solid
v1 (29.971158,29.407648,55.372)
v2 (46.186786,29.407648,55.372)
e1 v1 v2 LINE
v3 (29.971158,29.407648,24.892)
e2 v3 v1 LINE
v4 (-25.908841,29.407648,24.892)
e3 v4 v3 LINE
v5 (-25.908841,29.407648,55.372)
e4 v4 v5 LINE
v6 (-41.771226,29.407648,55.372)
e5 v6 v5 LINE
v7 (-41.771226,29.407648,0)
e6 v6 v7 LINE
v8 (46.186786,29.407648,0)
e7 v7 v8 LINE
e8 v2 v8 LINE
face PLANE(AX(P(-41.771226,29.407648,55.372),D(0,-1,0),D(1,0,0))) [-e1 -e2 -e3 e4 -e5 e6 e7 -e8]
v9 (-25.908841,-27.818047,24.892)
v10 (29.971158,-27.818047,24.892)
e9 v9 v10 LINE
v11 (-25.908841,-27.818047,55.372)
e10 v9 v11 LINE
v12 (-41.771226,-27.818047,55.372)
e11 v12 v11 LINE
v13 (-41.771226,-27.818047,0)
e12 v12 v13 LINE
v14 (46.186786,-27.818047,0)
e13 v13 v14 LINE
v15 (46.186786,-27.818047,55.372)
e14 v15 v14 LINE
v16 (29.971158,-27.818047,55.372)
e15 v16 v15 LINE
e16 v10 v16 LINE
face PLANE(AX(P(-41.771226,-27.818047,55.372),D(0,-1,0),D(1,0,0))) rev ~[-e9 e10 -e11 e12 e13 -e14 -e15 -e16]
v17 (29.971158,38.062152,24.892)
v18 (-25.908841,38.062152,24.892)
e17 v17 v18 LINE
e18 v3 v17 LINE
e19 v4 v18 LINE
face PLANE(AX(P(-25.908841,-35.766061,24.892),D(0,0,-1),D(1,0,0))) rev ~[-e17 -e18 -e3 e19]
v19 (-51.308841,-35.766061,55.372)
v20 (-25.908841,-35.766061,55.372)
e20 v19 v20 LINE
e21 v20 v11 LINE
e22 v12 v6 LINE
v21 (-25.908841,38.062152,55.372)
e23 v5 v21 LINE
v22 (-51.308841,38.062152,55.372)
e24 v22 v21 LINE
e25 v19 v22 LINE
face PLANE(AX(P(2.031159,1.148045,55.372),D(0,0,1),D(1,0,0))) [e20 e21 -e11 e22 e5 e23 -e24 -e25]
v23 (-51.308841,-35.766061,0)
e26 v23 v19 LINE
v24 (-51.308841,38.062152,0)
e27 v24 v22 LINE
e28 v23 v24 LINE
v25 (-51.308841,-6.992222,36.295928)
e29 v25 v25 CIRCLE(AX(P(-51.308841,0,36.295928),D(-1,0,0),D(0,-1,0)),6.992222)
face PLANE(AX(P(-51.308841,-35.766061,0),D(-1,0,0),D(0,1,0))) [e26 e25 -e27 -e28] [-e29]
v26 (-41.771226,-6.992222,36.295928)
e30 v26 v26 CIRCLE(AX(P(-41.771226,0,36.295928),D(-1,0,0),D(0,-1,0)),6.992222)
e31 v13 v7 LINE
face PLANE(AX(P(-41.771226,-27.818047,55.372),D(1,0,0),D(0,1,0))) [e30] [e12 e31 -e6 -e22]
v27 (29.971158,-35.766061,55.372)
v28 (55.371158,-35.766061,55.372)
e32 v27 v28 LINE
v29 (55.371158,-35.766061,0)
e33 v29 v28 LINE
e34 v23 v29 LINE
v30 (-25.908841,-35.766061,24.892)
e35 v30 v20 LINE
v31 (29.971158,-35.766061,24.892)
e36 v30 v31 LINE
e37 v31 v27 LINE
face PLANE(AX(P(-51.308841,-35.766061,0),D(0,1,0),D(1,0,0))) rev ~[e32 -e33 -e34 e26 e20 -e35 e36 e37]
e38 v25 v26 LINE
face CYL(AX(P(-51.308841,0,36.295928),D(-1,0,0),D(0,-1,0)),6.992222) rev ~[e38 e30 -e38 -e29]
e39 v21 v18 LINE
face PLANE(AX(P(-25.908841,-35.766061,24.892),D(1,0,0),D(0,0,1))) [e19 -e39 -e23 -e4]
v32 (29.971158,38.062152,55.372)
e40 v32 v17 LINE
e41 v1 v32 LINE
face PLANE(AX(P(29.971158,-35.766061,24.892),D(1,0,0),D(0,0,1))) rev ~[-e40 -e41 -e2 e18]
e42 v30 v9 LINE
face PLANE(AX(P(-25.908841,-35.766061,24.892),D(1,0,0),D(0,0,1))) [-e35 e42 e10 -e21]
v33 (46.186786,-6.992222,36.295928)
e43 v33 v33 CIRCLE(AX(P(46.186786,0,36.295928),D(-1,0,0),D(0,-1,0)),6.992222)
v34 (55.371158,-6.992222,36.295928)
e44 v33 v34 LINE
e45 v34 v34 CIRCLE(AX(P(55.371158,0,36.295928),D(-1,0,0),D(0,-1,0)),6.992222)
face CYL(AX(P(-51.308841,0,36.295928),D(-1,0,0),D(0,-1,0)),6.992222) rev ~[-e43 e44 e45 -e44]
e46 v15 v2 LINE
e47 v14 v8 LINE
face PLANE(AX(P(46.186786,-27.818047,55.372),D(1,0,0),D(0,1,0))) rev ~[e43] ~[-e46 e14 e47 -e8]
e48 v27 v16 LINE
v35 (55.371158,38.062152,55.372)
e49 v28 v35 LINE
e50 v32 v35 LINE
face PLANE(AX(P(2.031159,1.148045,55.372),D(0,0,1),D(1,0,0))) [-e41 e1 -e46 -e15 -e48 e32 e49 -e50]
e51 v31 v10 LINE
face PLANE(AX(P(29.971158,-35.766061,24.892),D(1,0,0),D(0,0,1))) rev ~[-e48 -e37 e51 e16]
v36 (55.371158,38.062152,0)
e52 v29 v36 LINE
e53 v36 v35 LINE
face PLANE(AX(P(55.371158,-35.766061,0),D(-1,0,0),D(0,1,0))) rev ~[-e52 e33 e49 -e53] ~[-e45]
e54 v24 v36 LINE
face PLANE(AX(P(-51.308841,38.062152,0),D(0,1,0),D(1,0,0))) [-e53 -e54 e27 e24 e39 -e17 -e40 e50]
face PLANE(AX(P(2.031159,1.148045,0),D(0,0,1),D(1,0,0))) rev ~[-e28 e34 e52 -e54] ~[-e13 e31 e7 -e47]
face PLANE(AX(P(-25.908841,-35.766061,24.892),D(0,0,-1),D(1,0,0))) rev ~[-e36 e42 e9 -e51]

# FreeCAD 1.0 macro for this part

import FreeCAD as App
import Part
import Sketcher

V = App.Vector
Q = App.Units.Quantity

doc = App.newDocument("Part")
body = doc.addObject("PartDesign::Body", "Body")

# Sketch on XY plane
sketch1 = body.newObject("Sketcher::SketchObject", "Sketch")
sketch1.AttachmentSupport = (doc.getObject("XY_Plane"), [""])
sketch1.MapMode = "FlatFace"
sketch1.addGeometry(Part.LineSegment(V(-51, 38, 0), V(-51, -36, 0)), False)
sketch1.addGeometry(Part.LineSegment(V(-51, -36, 0), V(55, -36, 0)), False)
sketch1.addGeometry(Part.LineSegment(V(55, -36, 0), V(55, 38, 0)), False)
sketch1.addGeometry(Part.LineSegment(V(55, 38, 0), V(-51, 38, 0)), False)
sketch1.addConstraint(Sketcher.Constraint("Coincident", 0, 2, 1, 1))
sketch1.addConstraint(Sketcher.Constraint("Coincident", 1, 2, 2, 1))
sketch1.addConstraint(Sketcher.Constraint("Coincident", 2, 2, 3, 1))
sketch1.addConstraint(Sketcher.Constraint("Coincident", 3, 2, 0, 1))
sketch1.addConstraint(Sketcher.Constraint("Vertical", 0))
sketch1.addConstraint(Sketcher.Constraint("Horizontal", 1))
sketch1.addConstraint(Sketcher.Constraint("Vertical", 2))
sketch1.addConstraint(Sketcher.Constraint("Horizontal", 3))
sketch1.addConstraint(Sketcher.Constraint("DistanceX", 1, 1, 1, 2, Q("4.1999999 in")))
sketch1.addConstraint(Sketcher.Constraint("DistanceY", 0, 2, 0, 1, Q("73.828213 mm")))
sketch1.addConstraint(Sketcher.Constraint("DistanceX", 0, 2, -1, 1, Q("51.308841 mm")))
sketch1.addConstraint(Sketcher.Constraint("DistanceY", 0, 2, -1, 1, Q("35.766061 mm")))
pad1 = body.newObject("PartDesign::Pad", "Pad")
pad1.Profile = sketch1
pad1.Length = Q("2.18 in")

# Sketch on XY plane
sketch2 = body.newObject("Sketcher::SketchObject", "Sketch001")
sketch2.AttachmentSupport = (doc.getObject("XY_Plane"), [""])
sketch2.MapMode = "FlatFace"
sketch2.AttachmentOffset = App.Placement(V(0, 0, 2.18 * 25.4), App.Rotation())
sketch2.addGeometry(Part.LineSegment(V(-42, 29, 0), V(-42, -28, 0)), False)
sketch2.addGeometry(Part.LineSegment(V(-42, -28, 0), V(46, -28, 0)), False)
sketch2.addGeometry(Part.LineSegment(V(46, -28, 0), V(46, 29, 0)), False)
sketch2.addGeometry(Part.LineSegment(V(46, 29, 0), V(-42, 29, 0)), False)
sketch2.addConstraint(Sketcher.Constraint("Coincident", 0, 2, 1, 1))
sketch2.addConstraint(Sketcher.Constraint("Coincident", 1, 2, 2, 1))
sketch2.addConstraint(Sketcher.Constraint("Coincident", 2, 2, 3, 1))
sketch2.addConstraint(Sketcher.Constraint("Coincident", 3, 2, 0, 1))
sketch2.addConstraint(Sketcher.Constraint("Vertical", 0))
sketch2.addConstraint(Sketcher.Constraint("Horizontal", 1))
sketch2.addConstraint(Sketcher.Constraint("Vertical", 2))
sketch2.addConstraint(Sketcher.Constraint("Horizontal", 3))
sketch2.addConstraint(Sketcher.Constraint("DistanceX", 1, 1, 1, 2, Q("87.958012 mm")))
sketch2.addConstraint(Sketcher.Constraint("DistanceY", 0, 2, 0, 1, Q("57.225695 mm")))
sketch2.addConstraint(Sketcher.Constraint("DistanceY", -1, 1, 2, 2, Q("29.407648 mm")))
sketch2.addConstraint(Sketcher.Constraint("DistanceX", 0, 2, -1, 1, Q("41.771226 mm")))
pocket1 = body.newObject("PartDesign::Pocket", "Pocket")
pocket1.Profile = sketch2
pocket1.Length = Q("2.25 in")

# Sketch on XZ plane
sketch3 = body.newObject("Sketcher::SketchObject", "Sketch002")
sketch3.AttachmentSupport = (doc.getObject("XZ_Plane"), [""])
sketch3.MapMode = "FlatFace"
sketch3.AttachmentOffset = App.Placement(V(0, 0, 35.766061), App.Rotation())
sketch3.addGeometry(Part.LineSegment(V(-26, 55, 0), V(-26, 25, 0)), False)
sketch3.addGeometry(Part.LineSegment(V(-26, 25, 0), V(30, 25, 0)), False)
sketch3.addGeometry(Part.LineSegment(V(30, 25, 0), V(30, 55, 0)), False)
sketch3.addGeometry(Part.LineSegment(V(30, 55, 0), V(-26, 55, 0)), False)
sketch3.addConstraint(Sketcher.Constraint("Coincident", 0, 2, 1, 1))
sketch3.addConstraint(Sketcher.Constraint("Coincident", 1, 2, 2, 1))
sketch3.addConstraint(Sketcher.Constraint("Coincident", 2, 2, 3, 1))
sketch3.addConstraint(Sketcher.Constraint("Coincident", 3, 2, 0, 1))
sketch3.addConstraint(Sketcher.Constraint("Vertical", 0))
sketch3.addConstraint(Sketcher.Constraint("Horizontal", 1))
sketch3.addConstraint(Sketcher.Constraint("Vertical", 2))
sketch3.addConstraint(Sketcher.Constraint("Horizontal", 3))
sketch3.addConstraint(Sketcher.Constraint("DistanceX", 1, 1, 1, 2, Q("2.1999999 in")))
sketch3.addConstraint(Sketcher.Constraint("DistanceY", 0, 2, 0, 1, Q("1.2 in")))
sketch3.addConstraint(Sketcher.Constraint("DistanceY", -1, 1, 0, 2, Q("0.98 in")))
sketch3.addConstraint(Sketcher.Constraint("DistanceX", 0, 2, -1, 1, Q("25.908841 mm")))
pocket2 = body.newObject("PartDesign::Pocket", "Pocket001")
pocket2.Profile = sketch3
pocket2.Length = Q("2.97 in")

# Sketch on YZ plane
sketch4 = body.newObject("Sketcher::SketchObject", "Sketch003")
sketch4.AttachmentSupport = (doc.getObject("YZ_Plane"), [""])
sketch4.MapMode = "FlatFace"
sketch4.AttachmentOffset = App.Placement(V(0, 0, -51.308841), App.Rotation())
sketch4.addGeometry(Part.Circle(V(0, 36, 0), V(0, 0, 1), 7), False)
sketch4.addConstraint(Sketcher.Constraint("PointOnObject", 0, 3, -2))
sketch4.addConstraint(Sketcher.Constraint("Diameter", 0, Q("13.984444 mm")))
sketch4.addConstraint(Sketcher.Constraint("DistanceY", -1, 1, 0, 3, Q("36.295928 mm")))
pocket3 = body.newObject("PartDesign::Pocket", "Pocket002")
pocket3.Profile = sketch4
pocket3.Length = Q("4.38 in")
pocket3.Reversed = True

doc.recompute()
